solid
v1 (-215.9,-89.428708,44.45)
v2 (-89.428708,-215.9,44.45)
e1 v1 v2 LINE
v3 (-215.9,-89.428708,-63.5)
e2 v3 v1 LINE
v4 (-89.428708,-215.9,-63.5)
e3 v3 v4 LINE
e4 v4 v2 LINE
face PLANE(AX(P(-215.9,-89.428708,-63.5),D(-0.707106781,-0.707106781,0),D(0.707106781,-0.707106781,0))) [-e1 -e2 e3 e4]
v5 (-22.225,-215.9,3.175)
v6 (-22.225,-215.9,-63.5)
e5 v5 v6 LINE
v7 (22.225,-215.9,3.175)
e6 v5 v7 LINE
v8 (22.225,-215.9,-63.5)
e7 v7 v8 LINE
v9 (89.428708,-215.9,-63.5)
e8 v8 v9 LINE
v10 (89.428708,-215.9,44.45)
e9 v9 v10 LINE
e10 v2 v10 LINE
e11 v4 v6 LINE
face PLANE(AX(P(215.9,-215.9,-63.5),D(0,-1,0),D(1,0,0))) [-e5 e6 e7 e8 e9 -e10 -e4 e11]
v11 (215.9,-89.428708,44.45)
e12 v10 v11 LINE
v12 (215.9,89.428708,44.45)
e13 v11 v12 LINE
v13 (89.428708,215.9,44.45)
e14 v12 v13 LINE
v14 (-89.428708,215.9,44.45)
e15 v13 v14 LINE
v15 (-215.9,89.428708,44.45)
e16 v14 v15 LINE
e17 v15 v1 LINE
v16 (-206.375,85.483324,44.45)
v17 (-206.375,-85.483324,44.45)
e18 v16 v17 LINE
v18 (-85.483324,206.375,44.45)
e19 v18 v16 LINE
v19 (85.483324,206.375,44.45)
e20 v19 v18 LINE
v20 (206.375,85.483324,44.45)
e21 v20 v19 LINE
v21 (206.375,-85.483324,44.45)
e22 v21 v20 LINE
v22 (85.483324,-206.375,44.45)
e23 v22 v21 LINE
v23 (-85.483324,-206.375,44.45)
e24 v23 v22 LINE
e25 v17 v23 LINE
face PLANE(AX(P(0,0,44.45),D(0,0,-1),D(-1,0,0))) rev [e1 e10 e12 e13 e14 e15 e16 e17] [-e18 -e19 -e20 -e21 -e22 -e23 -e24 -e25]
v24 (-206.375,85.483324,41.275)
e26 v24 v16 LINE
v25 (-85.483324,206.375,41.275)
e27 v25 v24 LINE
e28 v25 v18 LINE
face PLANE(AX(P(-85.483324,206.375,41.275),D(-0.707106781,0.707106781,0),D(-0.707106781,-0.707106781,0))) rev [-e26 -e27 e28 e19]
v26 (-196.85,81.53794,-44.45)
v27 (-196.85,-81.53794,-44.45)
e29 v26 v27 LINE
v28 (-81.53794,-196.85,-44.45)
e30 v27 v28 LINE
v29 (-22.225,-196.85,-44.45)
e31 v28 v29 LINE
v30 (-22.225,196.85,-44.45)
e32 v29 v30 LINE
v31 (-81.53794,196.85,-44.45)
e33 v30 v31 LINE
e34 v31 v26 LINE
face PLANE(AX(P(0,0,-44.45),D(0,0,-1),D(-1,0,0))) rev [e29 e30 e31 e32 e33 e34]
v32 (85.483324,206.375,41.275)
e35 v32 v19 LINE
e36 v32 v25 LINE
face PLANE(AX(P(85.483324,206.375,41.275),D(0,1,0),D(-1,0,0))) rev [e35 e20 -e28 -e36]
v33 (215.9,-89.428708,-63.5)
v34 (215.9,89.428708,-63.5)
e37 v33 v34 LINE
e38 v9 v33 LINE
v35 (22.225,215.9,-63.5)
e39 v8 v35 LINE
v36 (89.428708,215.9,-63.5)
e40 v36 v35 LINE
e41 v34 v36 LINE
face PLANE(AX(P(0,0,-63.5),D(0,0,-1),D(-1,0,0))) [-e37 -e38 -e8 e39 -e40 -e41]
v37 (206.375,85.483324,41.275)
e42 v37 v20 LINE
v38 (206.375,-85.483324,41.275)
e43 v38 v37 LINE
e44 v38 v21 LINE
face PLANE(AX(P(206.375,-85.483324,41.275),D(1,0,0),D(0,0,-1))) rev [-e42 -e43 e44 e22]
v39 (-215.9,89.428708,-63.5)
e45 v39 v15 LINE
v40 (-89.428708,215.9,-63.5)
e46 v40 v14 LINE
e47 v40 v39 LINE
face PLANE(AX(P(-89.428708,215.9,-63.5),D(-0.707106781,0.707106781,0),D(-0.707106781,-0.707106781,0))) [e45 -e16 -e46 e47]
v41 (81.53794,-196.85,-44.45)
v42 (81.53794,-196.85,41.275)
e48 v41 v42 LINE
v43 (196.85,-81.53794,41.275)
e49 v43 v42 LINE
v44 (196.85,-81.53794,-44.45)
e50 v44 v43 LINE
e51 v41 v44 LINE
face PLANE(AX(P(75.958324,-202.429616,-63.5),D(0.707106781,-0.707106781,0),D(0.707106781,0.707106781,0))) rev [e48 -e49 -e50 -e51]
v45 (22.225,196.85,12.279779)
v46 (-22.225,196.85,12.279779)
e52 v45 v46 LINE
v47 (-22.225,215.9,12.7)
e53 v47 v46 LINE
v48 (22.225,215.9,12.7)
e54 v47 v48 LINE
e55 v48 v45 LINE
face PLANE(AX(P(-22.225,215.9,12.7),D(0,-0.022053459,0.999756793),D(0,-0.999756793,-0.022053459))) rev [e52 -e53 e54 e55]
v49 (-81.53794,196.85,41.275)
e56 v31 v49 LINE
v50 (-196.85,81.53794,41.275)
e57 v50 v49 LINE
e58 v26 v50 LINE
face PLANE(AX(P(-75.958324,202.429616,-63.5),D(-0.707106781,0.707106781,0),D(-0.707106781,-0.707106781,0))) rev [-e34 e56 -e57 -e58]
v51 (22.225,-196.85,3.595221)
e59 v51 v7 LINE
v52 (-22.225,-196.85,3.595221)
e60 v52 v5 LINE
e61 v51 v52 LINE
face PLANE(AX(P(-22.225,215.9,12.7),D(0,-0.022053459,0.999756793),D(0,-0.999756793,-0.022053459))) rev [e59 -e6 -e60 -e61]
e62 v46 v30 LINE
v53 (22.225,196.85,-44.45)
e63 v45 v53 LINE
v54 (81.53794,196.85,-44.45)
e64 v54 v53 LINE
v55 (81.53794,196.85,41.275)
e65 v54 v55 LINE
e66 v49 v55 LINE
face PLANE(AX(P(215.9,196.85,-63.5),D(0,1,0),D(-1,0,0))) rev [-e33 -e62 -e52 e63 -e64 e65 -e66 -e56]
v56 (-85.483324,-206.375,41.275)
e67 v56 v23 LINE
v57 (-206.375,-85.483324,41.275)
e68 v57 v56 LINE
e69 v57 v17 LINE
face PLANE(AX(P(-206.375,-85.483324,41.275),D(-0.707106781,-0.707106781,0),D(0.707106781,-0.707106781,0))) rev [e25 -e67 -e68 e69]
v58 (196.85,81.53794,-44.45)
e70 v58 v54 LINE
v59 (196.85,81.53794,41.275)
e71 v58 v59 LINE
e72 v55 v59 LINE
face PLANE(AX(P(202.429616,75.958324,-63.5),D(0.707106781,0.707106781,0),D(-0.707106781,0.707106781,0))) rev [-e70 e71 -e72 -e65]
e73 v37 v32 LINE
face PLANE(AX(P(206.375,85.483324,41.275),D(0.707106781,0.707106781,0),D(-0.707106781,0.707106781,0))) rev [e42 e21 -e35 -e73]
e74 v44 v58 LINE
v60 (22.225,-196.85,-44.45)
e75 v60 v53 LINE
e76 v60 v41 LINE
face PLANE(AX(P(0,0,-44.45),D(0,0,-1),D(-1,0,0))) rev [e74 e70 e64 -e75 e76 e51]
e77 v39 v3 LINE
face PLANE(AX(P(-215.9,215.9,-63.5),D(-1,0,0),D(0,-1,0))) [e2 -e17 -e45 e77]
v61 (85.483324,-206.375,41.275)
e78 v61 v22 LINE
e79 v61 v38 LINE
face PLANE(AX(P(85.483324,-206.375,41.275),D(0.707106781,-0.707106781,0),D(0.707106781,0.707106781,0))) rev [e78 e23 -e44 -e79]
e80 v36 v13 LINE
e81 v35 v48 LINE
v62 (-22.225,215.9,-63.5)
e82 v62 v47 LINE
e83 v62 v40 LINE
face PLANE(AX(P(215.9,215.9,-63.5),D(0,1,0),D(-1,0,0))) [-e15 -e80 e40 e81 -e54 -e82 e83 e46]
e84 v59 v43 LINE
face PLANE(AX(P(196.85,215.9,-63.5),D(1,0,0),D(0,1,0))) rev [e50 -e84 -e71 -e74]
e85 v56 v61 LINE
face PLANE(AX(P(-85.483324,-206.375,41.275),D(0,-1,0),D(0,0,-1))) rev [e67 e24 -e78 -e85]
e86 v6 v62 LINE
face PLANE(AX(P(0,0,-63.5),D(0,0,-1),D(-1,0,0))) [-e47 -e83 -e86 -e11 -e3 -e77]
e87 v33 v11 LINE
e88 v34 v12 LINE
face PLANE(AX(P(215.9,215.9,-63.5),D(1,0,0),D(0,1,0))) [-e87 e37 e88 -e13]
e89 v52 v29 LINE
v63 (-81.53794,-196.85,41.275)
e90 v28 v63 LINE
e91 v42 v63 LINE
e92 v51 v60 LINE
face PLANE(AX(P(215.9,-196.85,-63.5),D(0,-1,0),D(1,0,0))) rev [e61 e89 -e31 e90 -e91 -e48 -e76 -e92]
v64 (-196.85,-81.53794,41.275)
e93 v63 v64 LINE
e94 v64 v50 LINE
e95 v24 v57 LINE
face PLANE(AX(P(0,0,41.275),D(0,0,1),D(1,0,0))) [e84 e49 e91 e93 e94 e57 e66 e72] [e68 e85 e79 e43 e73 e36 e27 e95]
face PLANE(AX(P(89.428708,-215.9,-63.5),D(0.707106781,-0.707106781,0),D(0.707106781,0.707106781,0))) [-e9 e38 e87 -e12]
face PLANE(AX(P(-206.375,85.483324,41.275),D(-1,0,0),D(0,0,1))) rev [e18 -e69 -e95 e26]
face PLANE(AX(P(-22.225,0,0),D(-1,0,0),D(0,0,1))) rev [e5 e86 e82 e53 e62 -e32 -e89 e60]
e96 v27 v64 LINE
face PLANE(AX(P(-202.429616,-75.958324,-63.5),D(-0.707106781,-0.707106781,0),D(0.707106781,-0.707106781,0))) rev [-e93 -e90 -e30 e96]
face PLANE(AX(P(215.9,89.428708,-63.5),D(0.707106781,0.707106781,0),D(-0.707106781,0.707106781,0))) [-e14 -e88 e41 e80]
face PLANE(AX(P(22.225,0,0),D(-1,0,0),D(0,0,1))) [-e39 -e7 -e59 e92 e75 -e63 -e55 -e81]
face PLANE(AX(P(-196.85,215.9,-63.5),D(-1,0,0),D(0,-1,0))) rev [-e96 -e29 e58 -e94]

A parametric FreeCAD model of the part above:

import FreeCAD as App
import Part
import Sketcher

V = App.Vector
Q = App.Units.Quantity


def faces_at(feature, points):
    """Names of the faces that lie closest to the given points."""
    faces = feature.Shape.Faces
    near = lambda p: min(range(len(faces)), key=lambda i: faces[i].distToShape(Part.Vertex(*p))[0])
    return sorted({f"Face{near(p) + 1}" for p in points})


def add_polygon(sketch, points):
    """Adds a closed chain of lines whose ends are joined by coincident constraints."""
    first, n = sketch.GeometryCount, len(points)
    for a, b in zip(points, points[1:] + points[:1]):
        sketch.addGeometry(Part.LineSegment(App.Vector(*a, 0), App.Vector(*b, 0)), False)
    for i in range(n):
        sketch.addConstraint(Sketcher.Constraint("Coincident", first + i, 2, first + (i + 1) % n, 1))

doc = App.newDocument("Part")
body = doc.addObject("PartDesign::Body", "Body")

# Sketch on XY plane
sketch1 = body.newObject("Sketcher::SketchObject", "Sketch")
sketch1.AttachmentSupport = (doc.getObject("XY_Plane"), [""])
sketch1.MapMode = "FlatFace"
add_polygon(sketch1, [(-215.9, 215.9), (-215.9, -215.9), (215.9, -215.9), (215.9, 215.9)])  # lines 0-3
sketch1.addConstraint([
    Sketcher.Constraint("Vertical", 0),
    Sketcher.Constraint("Horizontal", 1),
    Sketcher.Constraint("Vertical", 2),
    Sketcher.Constraint("Horizontal", 3),
    Sketcher.Constraint("Symmetric", 0, 2, 2, 2, -1, 1),
    Sketcher.Constraint("Equal", 3, 0),
    Sketcher.Constraint("DistanceX", 1, 1, 1, 2, Q("17 in")),
])
pad1 = body.newObject("PartDesign::Pad", "Pad")
pad1.Profile = sketch1
pad1.Type = "TwoLengths"
pad1.Length = Q("1.75 in")
pad1.Length2 = Q("2.5 in")

# Sketch on XY plane
sketch2 = body.newObject("Sketcher::SketchObject", "Sketch001")
sketch2.AttachmentSupport = (doc.getObject("XY_Plane"), [""])
sketch2.MapMode = "FlatFace"
sketch2.AttachmentOffset = App.Placement(V(0, 0, 1.75 * 25.4), App.Rotation())
add_polygon(sketch2, [(-278.913, 278.913), (-278.913, -278.913), (278.913, -278.913), (278.913, 278.913)])  # lines 0-3
add_polygon(sketch2, [(-215.9, -89.428708), (-215.9, 89.428708), (-89.428708, 215.9), (89.428708, 215.9), (215.9, 89.428708), (215.9, -89.428708), (89.428708, -215.9), (-89.428708, -215.9)])  # lines 4-11
sketch2.addConstraint([
    Sketcher.Constraint("Vertical", 0),
    Sketcher.Constraint("Horizontal", 1),
    Sketcher.Constraint("Vertical", 2),
    Sketcher.Constraint("Horizontal", 3),
    Sketcher.Constraint("Vertical", 4),
    Sketcher.Constraint("Horizontal", 6),
    Sketcher.Constraint("Vertical", 8),
    Sketcher.Constraint("Horizontal", 10),
    Sketcher.Constraint("Symmetric", 0, 2, 2, 2, -1, 1),
    Sketcher.Constraint("Symmetric", 4, 2, 8, 2, -1, 1),
    Sketcher.Constraint("Symmetric", 5, 2, 9, 2, -1, 1),
    Sketcher.Constraint("Perpendicular", 5, 7),
    Sketcher.Constraint("Perpendicular", 9, 11),
    Sketcher.Constraint("Horizontal", 4, 2, 7, 2),
    Sketcher.Constraint("Horizontal", 8, 2, 11, 2),
    Sketcher.Constraint("Vertical", 6, 2, 9, 2),
    Sketcher.Constraint("Equal", 3, 0),
    Sketcher.Constraint("Equal", 10, 4),
    Sketcher.Constraint("DistanceX", 4, 2, 7, 2, Q("17 in")),
    Sketcher.Constraint("DistanceX", 1, 1, 1, 2, 557.826),
    Sketcher.Constraint("DistanceX", 6, 1, 6, 2, 178.857416),
])
pocket1 = body.newObject("PartDesign::Pocket", "Pocket")
pocket1.Profile = sketch2
pocket1.Type = "ThroughAll"
pocket1.Midplane = True

# Sketch on YZ plane
sketch3 = body.newObject("Sketcher::SketchObject", "Sketch002")
sketch3.AttachmentSupport = (doc.getObject("YZ_Plane"), [""])
sketch3.MapMode = "FlatFace"
add_polygon(sketch3, [(215.9, 12.7), (-215.9, 3.175), (-215.9, -63.5), (215.9, -63.5)])  # lines 0-3
sketch3.addConstraint([
    Sketcher.Constraint("Vertical", 1),
    Sketcher.Constraint("Horizontal", 2),
    Sketcher.Constraint("Vertical", 3),
    Sketcher.Constraint("DistanceX", 2, 1, 2, 2, Q("17 in")),
    Sketcher.Constraint("DistanceY", 3, 1, 3, 2, Q("3 in")),
    Sketcher.Constraint("DistanceX", 0, 2, -1, 1, Q("8.5 in")),
    Sketcher.Constraint("DistanceY", 1, 2, -1, 1, Q("2.5 in")),
    Sketcher.Constraint("DistanceY", 1, 2, 1, 1, Q("2.625 in")),
])
pocket2 = body.newObject("PartDesign::Pocket", "Pocket001")
pocket2.Profile = sketch3
pocket2.Length = Q("1.75 in")
pocket2.Midplane = True
doc.recompute()

thickness = body.newObject("PartDesign::Thickness", "Thickness")
thickness.Base = (pocket2, faces_at(pocket2, [(0, 0, 44.45)]))
thickness.Value = Q("0.75 in")
thickness.Reversed = True
thickness.Join = "Intersection"

# Sketch on XY plane
sketch4 = body.newObject("Sketcher::SketchObject", "Sketch003")
sketch4.AttachmentSupport = (doc.getObject("XY_Plane"), [""])
sketch4.MapMode = "FlatFace"
sketch4.AttachmentOffset = App.Placement(V(0, 0, 1.75 * 25.4), App.Rotation())
add_polygon(sketch4, [(85.483324, 206.375), (-85.483324, 206.375), (-206.375, 85.483324), (-206.375, -85.483324), (-85.483324, -206.375), (85.483324, -206.375), (206.375, -85.483324), (206.375, 85.483324)])  # lines 0-7
sketch4.addConstraint([
    Sketcher.Constraint("Horizontal", 0),
    Sketcher.Constraint("Vertical", 2),
    Sketcher.Constraint("Horizontal", 4),
    Sketcher.Constraint("Vertical", 6),
    Sketcher.Constraint("Symmetric", 0, 2, 4, 2, -1, 1),
    Sketcher.Constraint("Symmetric", 1, 2, 5, 2, -1, 1),
    Sketcher.Constraint("Perpendicular", 1, 3),
    Sketcher.Constraint("Perpendicular", 5, 7),
    Sketcher.Constraint("Horizontal", 2, 2, 5, 2),
    Sketcher.Constraint("Horizontal", 1, 2, 6, 2),
    Sketcher.Constraint("Vertical", 0, 2, 3, 2),
    Sketcher.Constraint("Equal", 4, 2),
    Sketcher.Constraint("DistanceY", 3, 2, 0, 2, Q("16.25 in")),
    Sketcher.Constraint("DistanceX", 0, 2, 0, 1, 170.966648),
])
pocket3 = body.newObject("PartDesign::Pocket", "Pocket002")
pocket3.Profile = sketch4
pocket3.Length = Q("0.125 in")

# Sketch on XZ plane
sketch5 = body.newObject("Sketcher::SketchObject", "Sketch004")
sketch5.AttachmentSupport = (doc.getObject("XZ_Plane"), [""])
sketch5.MapMode = "FlatFace"
sketch5.AttachmentOffset = App.Placement(V(0, 0, 7.75 * 25.4), App.Rotation())
add_polygon(sketch5, [(-58.627386, -44.45), (-58.627386, 37.249458), (61.40647, 37.249458), (61.40647, -44.45)])  # lines 0-3
sketch5.addConstraint([
    Sketcher.Constraint("Vertical", 0),
    Sketcher.Constraint("Horizontal", 1),
    Sketcher.Constraint("Vertical", 2),
    Sketcher.Constraint("Horizontal", 3),
    Sketcher.Constraint("DistanceY", 2, 2, -1, 1, Q("1.75 in")),
    Sketcher.Constraint("DistanceY", 0, 1, 0, 2, 81.699458),
    Sketcher.Constraint("DistanceX", 1, 1, 1, 2, 120.033856),
    Sketcher.Constraint("DistanceX", -1, 1, 1, 2, 61.40647),
])
pocket4 = body.newObject("PartDesign::Pocket", "Pocket003")
pocket4.Profile = sketch5
pocket4.Length = Q("15.5 in")

doc.recompute()
